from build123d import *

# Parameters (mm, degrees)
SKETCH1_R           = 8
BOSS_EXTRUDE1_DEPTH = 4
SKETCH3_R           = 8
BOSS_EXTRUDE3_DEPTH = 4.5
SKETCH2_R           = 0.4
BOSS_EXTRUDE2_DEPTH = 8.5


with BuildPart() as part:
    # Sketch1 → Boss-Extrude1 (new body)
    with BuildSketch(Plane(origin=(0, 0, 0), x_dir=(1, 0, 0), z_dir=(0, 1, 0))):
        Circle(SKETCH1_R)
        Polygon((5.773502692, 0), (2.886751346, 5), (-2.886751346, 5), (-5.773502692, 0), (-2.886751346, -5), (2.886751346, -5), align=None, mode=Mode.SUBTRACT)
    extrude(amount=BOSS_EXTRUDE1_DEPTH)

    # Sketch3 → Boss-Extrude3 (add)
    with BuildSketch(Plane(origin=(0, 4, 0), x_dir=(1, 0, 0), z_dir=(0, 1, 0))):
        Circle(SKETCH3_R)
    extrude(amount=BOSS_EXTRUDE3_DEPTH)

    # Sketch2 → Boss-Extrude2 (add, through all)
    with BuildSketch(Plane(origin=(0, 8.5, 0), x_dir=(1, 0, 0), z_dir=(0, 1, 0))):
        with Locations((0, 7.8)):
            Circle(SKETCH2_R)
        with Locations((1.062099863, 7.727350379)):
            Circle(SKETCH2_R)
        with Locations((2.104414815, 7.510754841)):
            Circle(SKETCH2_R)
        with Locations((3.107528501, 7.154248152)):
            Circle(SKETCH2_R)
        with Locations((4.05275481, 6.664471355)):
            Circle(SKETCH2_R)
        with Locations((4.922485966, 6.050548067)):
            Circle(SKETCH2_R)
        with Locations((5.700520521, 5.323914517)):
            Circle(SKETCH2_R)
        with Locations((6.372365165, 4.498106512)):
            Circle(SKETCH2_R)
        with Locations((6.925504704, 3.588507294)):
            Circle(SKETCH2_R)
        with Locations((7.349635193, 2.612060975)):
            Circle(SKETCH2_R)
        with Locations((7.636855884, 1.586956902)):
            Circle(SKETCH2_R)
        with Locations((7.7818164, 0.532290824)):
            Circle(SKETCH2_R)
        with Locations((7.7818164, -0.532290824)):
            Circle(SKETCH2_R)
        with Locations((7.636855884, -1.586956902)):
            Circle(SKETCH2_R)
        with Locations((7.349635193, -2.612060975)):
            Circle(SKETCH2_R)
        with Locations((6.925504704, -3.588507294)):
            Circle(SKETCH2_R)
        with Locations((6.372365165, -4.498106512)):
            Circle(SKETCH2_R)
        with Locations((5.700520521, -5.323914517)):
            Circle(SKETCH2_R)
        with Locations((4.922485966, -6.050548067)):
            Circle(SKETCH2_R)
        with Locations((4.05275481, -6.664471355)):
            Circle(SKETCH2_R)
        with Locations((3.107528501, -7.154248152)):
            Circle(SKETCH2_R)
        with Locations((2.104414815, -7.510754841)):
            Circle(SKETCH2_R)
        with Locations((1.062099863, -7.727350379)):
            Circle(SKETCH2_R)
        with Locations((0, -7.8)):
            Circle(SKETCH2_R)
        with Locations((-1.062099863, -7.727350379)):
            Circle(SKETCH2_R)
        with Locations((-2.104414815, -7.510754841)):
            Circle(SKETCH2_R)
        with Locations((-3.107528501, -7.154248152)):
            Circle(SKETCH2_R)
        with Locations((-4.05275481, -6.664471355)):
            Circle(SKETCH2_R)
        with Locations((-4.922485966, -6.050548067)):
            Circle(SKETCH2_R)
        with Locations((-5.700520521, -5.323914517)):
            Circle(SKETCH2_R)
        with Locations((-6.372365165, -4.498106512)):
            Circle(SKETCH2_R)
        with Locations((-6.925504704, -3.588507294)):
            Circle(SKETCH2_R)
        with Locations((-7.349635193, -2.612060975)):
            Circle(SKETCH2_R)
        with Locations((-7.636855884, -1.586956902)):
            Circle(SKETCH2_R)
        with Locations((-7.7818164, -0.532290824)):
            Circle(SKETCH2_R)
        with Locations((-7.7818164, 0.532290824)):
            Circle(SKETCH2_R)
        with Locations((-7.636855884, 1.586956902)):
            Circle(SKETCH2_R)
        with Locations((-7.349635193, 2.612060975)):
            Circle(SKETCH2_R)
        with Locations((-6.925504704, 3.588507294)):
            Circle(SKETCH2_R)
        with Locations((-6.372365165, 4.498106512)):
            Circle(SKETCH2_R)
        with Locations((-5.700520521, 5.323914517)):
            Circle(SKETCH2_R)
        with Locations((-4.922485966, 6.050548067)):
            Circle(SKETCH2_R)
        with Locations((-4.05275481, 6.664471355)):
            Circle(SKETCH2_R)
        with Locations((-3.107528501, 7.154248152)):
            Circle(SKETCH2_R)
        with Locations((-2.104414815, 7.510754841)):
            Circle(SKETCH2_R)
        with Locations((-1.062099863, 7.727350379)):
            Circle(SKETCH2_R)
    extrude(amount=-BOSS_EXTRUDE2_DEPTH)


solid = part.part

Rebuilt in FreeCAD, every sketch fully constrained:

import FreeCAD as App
import Part
import Sketcher
Q = App.Units.Quantity


def add_polygon(sketch, points):
    """Adds a closed chain of lines whose ends are joined by coincident constraints."""
    first, n = sketch.GeometryCount, len(points)
    for a, b in zip(points, points[1:] + points[:1]):
        sketch.addGeometry(Part.LineSegment(App.Vector(*a, 0), App.Vector(*b, 0)), False)
    for i in range(n):
        sketch.addConstraint(Sketcher.Constraint("Coincident", first + i, 2, first + (i + 1) % n, 1))

doc = App.newDocument("Part")
params = doc.addObject("Spreadsheet::Sheet", "Params")
for row, (alias, value) in enumerate([
    ("sketch1_diameter", "16 mm"),
    ("pad1_length", "4 mm"),
    ("sketch2_diameter", "16 mm"),
    ("pad2_length", "4.5 mm"),
    ("sketch3_diameter", "0.8 mm"),
    ("pad3_length", "8.5 mm"),
], start=1):
    params.set(f"A{row}", alias)
    params.set(f"B{row}", "=" + value)
    params.setAlias(f"B{row}", alias)

body = doc.addObject("PartDesign::Body", "Body")

# Sketch on XZ plane
sketch1 = doc.addObject("Sketcher::SketchObject", "Sketch")
body.addObject(sketch1)
sketch1.AttachmentSupport = (doc.XZ_Plane, [""])
sketch1.MapMode = "FlatFace"
sketch1.addGeometry(Part.Circle(App.Vector(0, 0, 0), App.Vector(0, 0, 1), 8), False)  # 0
add_polygon(sketch1, [(2.886751, -5), (5.773503, 0), (2.886751, 5), (-2.886751, 5), (-5.773503, 0), (-2.886751, -5)])  # lines 1-6
sketch1.addConstraint([
    Sketcher.Constraint("Horizontal", 3),
    Sketcher.Constraint("Horizontal", 6),
    Sketcher.Constraint("Coincident", 0, 3, -1, 1),
    Sketcher.Constraint("Symmetric", 1, 2, 4, 2, -1, 1),
    Sketcher.Constraint("Symmetric", 2, 2, 5, 2, -1, 1),
    Sketcher.Constraint("PointOnObject", 1, 2, -1),
    Sketcher.Constraint("Parallel", 1, 4),
    Sketcher.Constraint("Vertical", 3, 2, 5, 2),
    Sketcher.Constraint("Diameter", 0, 16.0),
    Sketcher.Constraint("Angle", 1, Q("60 deg")),
    Sketcher.Constraint("DistanceY", -1, 1, 2, 2, 5.0),
    Sketcher.Constraint("DistanceX", 3, 2, 3, 1, 5.773503),
])
sketch1.setExpression("Constraints[14]", "Params.sketch1_diameter")
pad1 = doc.addObject("PartDesign::Pad", "Pad")
body.addObject(pad1)
pad1.Profile = sketch1
pad1.setExpression("Length", "Params.pad1_length")
pad1.Reversed = True

# Sketch on XZ plane
sketch2 = doc.addObject("Sketcher::SketchObject", "Sketch001")
body.addObject(sketch2)
sketch2.AttachmentSupport = (doc.XZ_Plane, [""])
sketch2.MapMode = "FlatFace"
sketch2.AttachmentOffset = App.Placement(App.Vector(0, 0, -4), App.Rotation())
sketch2.addGeometry(Part.Circle(App.Vector(0, 0, 0), App.Vector(0, 0, 1), 8), False)
sketch2.addConstraint([
    Sketcher.Constraint("Coincident", 0, 3, -1, 1),
    Sketcher.Constraint("Diameter", 0, 16.0),
])
sketch2.setExpression("Constraints[1]", "Params.sketch2_diameter")
pad2 = doc.addObject("PartDesign::Pad", "Pad001")
body.addObject(pad2)
pad2.Profile = sketch2
pad2.setExpression("Length", "Params.pad2_length")
pad2.Reversed = True

# Sketch on XZ plane
sketch3 = doc.addObject("Sketcher::SketchObject", "Sketch002")
body.addObject(sketch3)
sketch3.AttachmentSupport = (doc.XZ_Plane, [""])
sketch3.MapMode = "FlatFace"
sketch3.AttachmentOffset = App.Placement(App.Vector(0, 0, -8.5), App.Rotation())
sketch3.addGeometry([
    Part.Circle(App.Vector(0, -7.8, 0), App.Vector(0, 0, 1), 0.4),  # 0
    Part.Circle(App.Vector(1.0621, -7.72735, 0), App.Vector(0, 0, 1), 0.4),  # 1
    Part.Circle(App.Vector(2.104415, -7.510755, 0), App.Vector(0, 0, 1), 0.4),  # 2
    Part.Circle(App.Vector(3.107529, -7.154248, 0), App.Vector(0, 0, 1), 0.4),  # 3
    Part.Circle(App.Vector(4.052755, -6.664471, 0), App.Vector(0, 0, 1), 0.4),  # 4
    Part.Circle(App.Vector(4.922486, -6.050548, 0), App.Vector(0, 0, 1), 0.4),  # 5
    Part.Circle(App.Vector(5.700521, -5.323915, 0), App.Vector(0, 0, 1), 0.4),  # 6
    Part.Circle(App.Vector(6.372365, -4.498107, 0), App.Vector(0, 0, 1), 0.4),  # 7
    Part.Circle(App.Vector(6.925505, -3.588507, 0), App.Vector(0, 0, 1), 0.4),  # 8
    Part.Circle(App.Vector(7.349635, -2.612061, 0), App.Vector(0, 0, 1), 0.4),  # 9
    Part.Circle(App.Vector(7.636856, -1.586957, 0), App.Vector(0, 0, 1), 0.4),  # 10
    Part.Circle(App.Vector(7.781816, -0.532291, 0), App.Vector(0, 0, 1), 0.4),  # 11
    Part.Circle(App.Vector(7.781816, 0.532291, 0), App.Vector(0, 0, 1), 0.4),  # 12
    Part.Circle(App.Vector(7.636856, 1.586957, 0), App.Vector(0, 0, 1), 0.4),  # 13
    Part.Circle(App.Vector(7.349635, 2.612061, 0), App.Vector(0, 0, 1), 0.4),  # 14
    Part.Circle(App.Vector(6.925505, 3.588507, 0), App.Vector(0, 0, 1), 0.4),  # 15
    Part.Circle(App.Vector(6.372365, 4.498107, 0), App.Vector(0, 0, 1), 0.4),  # 16
    Part.Circle(App.Vector(5.700521, 5.323915, 0), App.Vector(0, 0, 1), 0.4),  # 17
    Part.Circle(App.Vector(4.922486, 6.050548, 0), App.Vector(0, 0, 1), 0.4),  # 18
    Part.Circle(App.Vector(4.052755, 6.664471, 0), App.Vector(0, 0, 1), 0.4),  # 19
    Part.Circle(App.Vector(3.107529, 7.154248, 0), App.Vector(0, 0, 1), 0.4),  # 20
    Part.Circle(App.Vector(2.104415, 7.510755, 0), App.Vector(0, 0, 1), 0.4),  # 21
    Part.Circle(App.Vector(1.0621, 7.72735, 0), App.Vector(0, 0, 1), 0.4),  # 22
    Part.Circle(App.Vector(0, 7.8, 0), App.Vector(0, 0, 1), 0.4),  # 23
    Part.Circle(App.Vector(-1.0621, 7.72735, 0), App.Vector(0, 0, 1), 0.4),  # 24
    Part.Circle(App.Vector(-2.104415, 7.510755, 0), App.Vector(0, 0, 1), 0.4),  # 25
    Part.Circle(App.Vector(-3.107529, 7.154248, 0), App.Vector(0, 0, 1), 0.4),  # 26
    Part.Circle(App.Vector(-4.052755, 6.664471, 0), App.Vector(0, 0, 1), 0.4),  # 27
    Part.Circle(App.Vector(-4.922486, 6.050548, 0), App.Vector(0, 0, 1), 0.4),  # 28
    Part.Circle(App.Vector(-5.700521, 5.323915, 0), App.Vector(0, 0, 1), 0.4),  # 29
    Part.Circle(App.Vector(-6.372365, 4.498107, 0), App.Vector(0, 0, 1), 0.4),  # 30
    Part.Circle(App.Vector(-6.925505, 3.588507, 0), App.Vector(0, 0, 1), 0.4),  # 31
    Part.Circle(App.Vector(-7.349635, 2.612061, 0), App.Vector(0, 0, 1), 0.4),  # 32
    Part.Circle(App.Vector(-7.636856, 1.586957, 0), App.Vector(0, 0, 1), 0.4),  # 33
    Part.Circle(App.Vector(-7.781816, 0.532291, 0), App.Vector(0, 0, 1), 0.4),  # 34
    Part.Circle(App.Vector(-7.781816, -0.532291, 0), App.Vector(0, 0, 1), 0.4),  # 35
    Part.Circle(App.Vector(-7.636856, -1.586957, 0), App.Vector(0, 0, 1), 0.4),  # 36
    Part.Circle(App.Vector(-7.349635, -2.612061, 0), App.Vector(0, 0, 1), 0.4),  # 37
    Part.Circle(App.Vector(-6.925505, -3.588507, 0), App.Vector(0, 0, 1), 0.4),  # 38
    Part.Circle(App.Vector(-6.372365, -4.498107, 0), App.Vector(0, 0, 1), 0.4),  # 39
    Part.Circle(App.Vector(-5.700521, -5.323915, 0), App.Vector(0, 0, 1), 0.4),  # 40
    Part.Circle(App.Vector(-4.922486, -6.050548, 0), App.Vector(0, 0, 1), 0.4),  # 41
    Part.Circle(App.Vector(-4.052755, -6.664471, 0), App.Vector(0, 0, 1), 0.4),  # 42
    Part.Circle(App.Vector(-3.107529, -7.154248, 0), App.Vector(0, 0, 1), 0.4),  # 43
    Part.Circle(App.Vector(-2.104415, -7.510755, 0), App.Vector(0, 0, 1), 0.4),  # 44
    Part.Circle(App.Vector(-1.0621, -7.72735, 0), App.Vector(0, 0, 1), 0.4),  # 45
], False)
sketch3.addConstraint([
    Sketcher.Constraint("Equal", 0, 1),
    Sketcher.Constraint("Equal", 1, 2),
    Sketcher.Constraint("Equal", 2, 3),
    Sketcher.Constraint("Equal", 3, 4),
    Sketcher.Constraint("Equal", 4, 5),
    Sketcher.Constraint("Equal", 5, 6),
    Sketcher.Constraint("Equal", 6, 7),
    Sketcher.Constraint("Equal", 7, 8),
    Sketcher.Constraint("Equal", 8, 9),
    Sketcher.Constraint("Equal", 9, 10),
    Sketcher.Constraint("Equal", 10, 11),
    Sketcher.Constraint("Equal", 11, 12),
    Sketcher.Constraint("Equal", 12, 13),
    Sketcher.Constraint("Equal", 13, 14),
    Sketcher.Constraint("Equal", 14, 15),
    Sketcher.Constraint("Equal", 15, 16),
    Sketcher.Constraint("Equal", 16, 17),
    Sketcher.Constraint("Equal", 17, 18),
    Sketcher.Constraint("Equal", 18, 19),
    Sketcher.Constraint("Equal", 19, 20),
    Sketcher.Constraint("Equal", 20, 21),
    Sketcher.Constraint("Equal", 21, 22),
    Sketcher.Constraint("Equal", 22, 23),
    Sketcher.Constraint("Equal", 23, 24),
    Sketcher.Constraint("Equal", 24, 25),
    Sketcher.Constraint("Equal", 25, 26),
    Sketcher.Constraint("Equal", 26, 27),
    Sketcher.Constraint("Equal", 27, 28),
    Sketcher.Constraint("Equal", 28, 29),
    Sketcher.Constraint("Equal", 29, 30),
    Sketcher.Constraint("Equal", 30, 31),
    Sketcher.Constraint("Equal", 31, 32),
    Sketcher.Constraint("Equal", 32, 33),
    Sketcher.Constraint("Equal", 33, 34),
    Sketcher.Constraint("Equal", 34, 35),
    Sketcher.Constraint("Equal", 35, 36),
    Sketcher.Constraint("Equal", 36, 37),
    Sketcher.Constraint("Equal", 37, 38),
    Sketcher.Constraint("Equal", 38, 39),
    Sketcher.Constraint("Equal", 39, 40),
    Sketcher.Constraint("Equal", 40, 41),
    Sketcher.Constraint("Equal", 41, 42),
    Sketcher.Constraint("Equal", 42, 43),
    Sketcher.Constraint("Equal", 43, 44),
    Sketcher.Constraint("Equal", 44, 45),
    Sketcher.Constraint("Symmetric", 0, 3, 23, 3, -1, 1),
    Sketcher.Constraint("Symmetric", 1, 3, 24, 3, -1, 1),
    Sketcher.Constraint("Symmetric", 2, 3, 25, 3, -1, 1),
    Sketcher.Constraint("Symmetric", 3, 3, 26, 3, -1, 1),
    Sketcher.Constraint("Symmetric", 4, 3, 27, 3, -1, 1),
    Sketcher.Constraint("Symmetric", 5, 3, 28, 3, -1, 1),
    Sketcher.Constraint("Symmetric", 6, 3, 29, 3, -1, 1),
    Sketcher.Constraint("Symmetric", 7, 3, 30, 3, -1, 1),
    Sketcher.Constraint("Symmetric", 8, 3, 31, 3, -1, 1),
    Sketcher.Constraint("Symmetric", 9, 3, 32, 3, -1, 1),
    Sketcher.Constraint("Symmetric", 10, 3, 33, 3, -1, 1),
    Sketcher.Constraint("Symmetric", 11, 3, 34, 3, -1, 1),
    Sketcher.Constraint("Symmetric", 12, 3, 35, 3, -1, 1),
    Sketcher.Constraint("Symmetric", 13, 3, 36, 3, -1, 1),
    Sketcher.Constraint("Symmetric", 14, 3, 37, 3, -1, 1),
    Sketcher.Constraint("Symmetric", 15, 3, 38, 3, -1, 1),
    Sketcher.Constraint("Symmetric", 16, 3, 39, 3, -1, 1),
    Sketcher.Constraint("Symmetric", 17, 3, 40, 3, -1, 1),
    Sketcher.Constraint("Symmetric", 18, 3, 41, 3, -1, 1),
    Sketcher.Constraint("Symmetric", 19, 3, 42, 3, -1, 1),
    Sketcher.Constraint("Symmetric", 20, 3, 43, 3, -1, 1),
    Sketcher.Constraint("Symmetric", 21, 3, 44, 3, -1, 1),
    Sketcher.Constraint("Symmetric", 22, 3, 45, 3, -1, 1),
    Sketcher.Constraint("Symmetric", 22, 3, 24, 3, -2),
    Sketcher.Constraint("Symmetric", 21, 3, 25, 3, -2),
    Sketcher.Constraint("Symmetric", 20, 3, 26, 3, -2),
    Sketcher.Constraint("Symmetric", 19, 3, 27, 3, -2),
    Sketcher.Constraint("Symmetric", 18, 3, 28, 3, -2),
    Sketcher.Constraint("Symmetric", 17, 3, 29, 3, -2),
    Sketcher.Constraint("Symmetric", 16, 3, 30, 3, -2),
    Sketcher.Constraint("Symmetric", 15, 3, 31, 3, -2),
    Sketcher.Constraint("Symmetric", 14, 3, 32, 3, -2),
    Sketcher.Constraint("Symmetric", 13, 3, 33, 3, -2),
    Sketcher.Constraint("Symmetric", 12, 3, 34, 3, -2),
    Sketcher.Constraint("PointOnObject", 0, 3, -2),
    Sketcher.Constraint("Diameter", 0, 0.8),
    Sketcher.Constraint("DistanceY", 0, 3, -1, 1, 7.8),
    Sketcher.Constraint("DistanceX", -1, 1, 1, 3, 1.0621),
    Sketcher.Constraint("DistanceY", 3, 3, 5, 3, 1.1037),
    Sketcher.Constraint("DistanceY", 7, 3, 8, 3, 0.909599),
    Sketcher.Constraint("DistanceY", 8, 3, 12, 3, 4.120798),
    Sketcher.Constraint("DistanceY", 1, 3, -1, 1, 7.72735),
    Sketcher.Constraint("DistanceX", -1, 1, 3, 3, 3.107529),
    Sketcher.Constraint("DistanceY", 3, 3, -1, 1, 7.154248),
    Sketcher.Constraint("DistanceY", 4, 3, -1, 1, 6.664471),
    Sketcher.Constraint("DistanceX", -1, 1, 6, 3, 5.700521),
    Sketcher.Constraint("DistanceY", 9, 3, -1, 1, 2.612061),
    Sketcher.Constraint("DistanceY", 11, 3, -1, 1, 0.532291),
    Sketcher.Constraint("DistanceX", 2, 3, 4, 3, 1.94834),
    Sketcher.Constraint("DistanceX", 4, 3, 5, 3, 0.869731),
    Sketcher.Constraint("DistanceY", 2, 3, 6, 3, 2.18684),
    Sketcher.Constraint("DistanceY", 6, 3, 7, 3, 0.825808),
    Sketcher.Constraint("DistanceX", 5, 3, 7, 3, 1.449879),
    Sketcher.Constraint("DistanceX", 7, 3, 8, 3, 0.55314),
    Sketcher.Constraint("DistanceX", 8, 3, 9, 3, 0.42413),
    Sketcher.Constraint("DistanceX", 9, 3, 10, 3, 0.287221),
    Sketcher.Constraint("DistanceY", 8, 3, 10, 3, 2.00155),
    Sketcher.Constraint("DistanceX", 10, 3, 11, 3, 0.144961),
    Sketcher.Constraint("DistanceX", 25, 3, 21, 3, 4.20883),
])
sketch3.setExpression("Constraints[80]", "Params.sketch3_diameter")
pad3 = doc.addObject("PartDesign::Pad", "Pad002")
body.addObject(pad3)
pad3.Profile = sketch3
pad3.setExpression("Length", "Params.pad3_length")

doc.recompute()
